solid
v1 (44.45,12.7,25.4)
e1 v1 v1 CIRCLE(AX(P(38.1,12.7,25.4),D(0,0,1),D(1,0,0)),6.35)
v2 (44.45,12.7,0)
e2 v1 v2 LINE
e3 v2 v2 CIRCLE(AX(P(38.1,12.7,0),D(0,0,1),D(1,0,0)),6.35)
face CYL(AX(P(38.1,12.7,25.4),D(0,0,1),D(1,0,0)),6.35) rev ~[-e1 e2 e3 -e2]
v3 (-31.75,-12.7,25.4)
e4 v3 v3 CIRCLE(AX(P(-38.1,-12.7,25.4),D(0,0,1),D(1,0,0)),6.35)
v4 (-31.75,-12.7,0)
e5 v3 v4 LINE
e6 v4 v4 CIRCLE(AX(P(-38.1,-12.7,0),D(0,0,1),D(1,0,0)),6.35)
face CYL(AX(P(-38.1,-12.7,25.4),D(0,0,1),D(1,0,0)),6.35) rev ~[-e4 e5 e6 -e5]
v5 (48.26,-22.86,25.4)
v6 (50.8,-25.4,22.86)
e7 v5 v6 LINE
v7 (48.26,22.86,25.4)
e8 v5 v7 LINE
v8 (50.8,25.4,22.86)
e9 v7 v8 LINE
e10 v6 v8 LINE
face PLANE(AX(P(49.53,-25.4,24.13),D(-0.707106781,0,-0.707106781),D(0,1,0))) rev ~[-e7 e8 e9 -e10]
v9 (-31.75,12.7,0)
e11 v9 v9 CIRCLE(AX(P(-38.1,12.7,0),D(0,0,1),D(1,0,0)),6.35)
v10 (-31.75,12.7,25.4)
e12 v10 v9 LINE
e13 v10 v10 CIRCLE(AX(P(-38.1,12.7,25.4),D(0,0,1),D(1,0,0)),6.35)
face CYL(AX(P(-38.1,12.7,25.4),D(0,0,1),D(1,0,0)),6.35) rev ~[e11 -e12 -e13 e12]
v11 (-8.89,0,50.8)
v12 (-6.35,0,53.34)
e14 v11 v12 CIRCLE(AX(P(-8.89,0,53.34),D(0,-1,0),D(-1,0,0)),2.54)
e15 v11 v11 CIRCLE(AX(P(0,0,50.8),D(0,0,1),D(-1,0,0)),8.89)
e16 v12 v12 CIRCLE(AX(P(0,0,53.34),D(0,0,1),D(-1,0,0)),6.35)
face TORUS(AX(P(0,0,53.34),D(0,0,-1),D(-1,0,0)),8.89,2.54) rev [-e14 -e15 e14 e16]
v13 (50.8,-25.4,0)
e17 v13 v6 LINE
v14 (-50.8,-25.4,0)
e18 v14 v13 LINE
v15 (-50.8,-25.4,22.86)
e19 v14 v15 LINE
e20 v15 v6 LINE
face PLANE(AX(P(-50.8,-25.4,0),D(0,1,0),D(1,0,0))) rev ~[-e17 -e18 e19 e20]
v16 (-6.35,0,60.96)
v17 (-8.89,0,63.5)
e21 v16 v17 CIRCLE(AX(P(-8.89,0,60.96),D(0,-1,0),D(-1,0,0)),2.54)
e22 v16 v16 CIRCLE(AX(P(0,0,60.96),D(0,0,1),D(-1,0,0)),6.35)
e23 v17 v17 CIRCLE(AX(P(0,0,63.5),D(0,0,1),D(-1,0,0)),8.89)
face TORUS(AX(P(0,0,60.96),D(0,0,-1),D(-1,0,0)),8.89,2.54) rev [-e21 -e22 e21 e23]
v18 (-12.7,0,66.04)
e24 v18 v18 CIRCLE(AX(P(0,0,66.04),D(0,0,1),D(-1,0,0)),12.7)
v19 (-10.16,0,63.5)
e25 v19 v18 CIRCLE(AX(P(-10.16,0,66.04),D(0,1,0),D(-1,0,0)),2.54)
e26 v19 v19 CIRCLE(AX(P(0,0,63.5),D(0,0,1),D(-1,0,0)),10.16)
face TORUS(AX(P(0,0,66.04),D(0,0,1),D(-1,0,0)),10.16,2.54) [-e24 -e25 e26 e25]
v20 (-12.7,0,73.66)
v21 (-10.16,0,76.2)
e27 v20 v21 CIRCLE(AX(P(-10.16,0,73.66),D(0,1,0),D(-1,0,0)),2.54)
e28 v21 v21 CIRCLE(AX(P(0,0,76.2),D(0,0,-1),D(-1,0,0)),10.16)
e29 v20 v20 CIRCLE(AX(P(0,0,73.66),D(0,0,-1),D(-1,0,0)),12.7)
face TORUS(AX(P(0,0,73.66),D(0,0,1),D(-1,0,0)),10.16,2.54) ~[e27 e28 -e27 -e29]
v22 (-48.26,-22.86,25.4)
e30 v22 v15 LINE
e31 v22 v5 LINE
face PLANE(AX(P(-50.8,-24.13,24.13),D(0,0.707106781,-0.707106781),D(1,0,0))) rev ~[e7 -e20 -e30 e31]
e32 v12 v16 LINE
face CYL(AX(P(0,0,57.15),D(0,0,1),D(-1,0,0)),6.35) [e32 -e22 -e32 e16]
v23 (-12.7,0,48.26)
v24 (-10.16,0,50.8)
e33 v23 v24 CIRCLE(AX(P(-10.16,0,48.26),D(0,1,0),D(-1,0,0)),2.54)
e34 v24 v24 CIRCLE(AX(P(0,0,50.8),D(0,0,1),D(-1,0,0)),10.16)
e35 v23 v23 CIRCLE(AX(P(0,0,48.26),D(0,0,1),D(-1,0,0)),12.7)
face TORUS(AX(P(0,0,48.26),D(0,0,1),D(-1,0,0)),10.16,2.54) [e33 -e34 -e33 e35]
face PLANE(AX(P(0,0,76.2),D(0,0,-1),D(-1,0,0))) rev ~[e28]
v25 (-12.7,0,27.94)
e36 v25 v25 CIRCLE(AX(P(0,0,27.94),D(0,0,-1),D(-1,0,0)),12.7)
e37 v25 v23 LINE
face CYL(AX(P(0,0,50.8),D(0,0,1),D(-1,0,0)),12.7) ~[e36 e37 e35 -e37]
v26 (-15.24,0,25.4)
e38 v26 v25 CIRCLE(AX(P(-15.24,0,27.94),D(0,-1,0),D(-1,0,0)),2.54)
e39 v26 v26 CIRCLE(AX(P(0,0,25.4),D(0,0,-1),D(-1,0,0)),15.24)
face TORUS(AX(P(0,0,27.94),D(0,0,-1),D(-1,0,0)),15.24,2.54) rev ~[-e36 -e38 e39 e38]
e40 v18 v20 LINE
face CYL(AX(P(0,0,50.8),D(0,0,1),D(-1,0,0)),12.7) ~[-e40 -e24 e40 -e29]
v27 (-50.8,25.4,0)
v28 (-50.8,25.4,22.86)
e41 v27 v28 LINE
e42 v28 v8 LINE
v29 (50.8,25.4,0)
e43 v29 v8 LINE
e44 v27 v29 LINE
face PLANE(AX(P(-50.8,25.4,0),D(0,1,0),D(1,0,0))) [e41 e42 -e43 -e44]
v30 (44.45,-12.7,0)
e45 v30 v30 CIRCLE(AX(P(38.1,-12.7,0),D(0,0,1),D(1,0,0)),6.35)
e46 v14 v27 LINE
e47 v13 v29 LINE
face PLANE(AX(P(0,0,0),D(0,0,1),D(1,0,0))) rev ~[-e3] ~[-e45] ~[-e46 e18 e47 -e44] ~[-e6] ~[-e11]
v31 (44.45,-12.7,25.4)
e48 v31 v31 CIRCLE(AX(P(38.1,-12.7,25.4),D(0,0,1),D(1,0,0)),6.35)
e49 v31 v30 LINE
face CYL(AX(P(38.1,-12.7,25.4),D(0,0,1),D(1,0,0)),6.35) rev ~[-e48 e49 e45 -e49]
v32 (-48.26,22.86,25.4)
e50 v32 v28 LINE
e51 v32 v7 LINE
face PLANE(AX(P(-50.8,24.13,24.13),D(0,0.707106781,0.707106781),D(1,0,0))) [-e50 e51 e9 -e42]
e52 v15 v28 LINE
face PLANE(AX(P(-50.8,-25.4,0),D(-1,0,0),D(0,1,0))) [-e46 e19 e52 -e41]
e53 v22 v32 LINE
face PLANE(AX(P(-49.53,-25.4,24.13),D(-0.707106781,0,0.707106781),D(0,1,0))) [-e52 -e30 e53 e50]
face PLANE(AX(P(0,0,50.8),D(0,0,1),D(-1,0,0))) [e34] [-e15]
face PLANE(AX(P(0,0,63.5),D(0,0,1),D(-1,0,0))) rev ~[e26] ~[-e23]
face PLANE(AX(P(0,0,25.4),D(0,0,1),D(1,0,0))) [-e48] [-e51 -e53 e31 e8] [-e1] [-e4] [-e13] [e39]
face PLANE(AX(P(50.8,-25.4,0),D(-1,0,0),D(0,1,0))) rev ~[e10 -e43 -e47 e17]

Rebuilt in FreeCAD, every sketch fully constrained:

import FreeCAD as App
import Part
import Sketcher

V = App.Vector
Q = App.Units.Quantity


def edges_at(feature, points):
    """Names of the edges that pass closest to the given points."""
    edges = feature.Shape.Edges
    near = lambda p: min(range(len(edges)), key=lambda i: edges[i].distToShape(Part.Vertex(*p))[0])
    return sorted({f"Edge{near(p) + 1}" for p in points})


def add_polygon(sketch, points):
    """Adds a closed chain of lines whose ends are joined by coincident constraints."""
    first, n = sketch.GeometryCount, len(points)
    for a, b in zip(points, points[1:] + points[:1]):
        sketch.addGeometry(Part.LineSegment(App.Vector(*a, 0), App.Vector(*b, 0)), False)
    for i in range(n):
        sketch.addConstraint(Sketcher.Constraint("Coincident", first + i, 2, first + (i + 1) % n, 1))

doc = App.newDocument("Part")
body = doc.addObject("PartDesign::Body", "Body")

# Sketch on XY plane
sketch1 = body.newObject("Sketcher::SketchObject", "Sketch")
sketch1.AttachmentSupport = (doc.getObject("XY_Plane"), [""])
sketch1.MapMode = "FlatFace"
add_polygon(sketch1, [(-50.8, 25.4), (-50.8, -25.4), (50.8, -25.4), (50.8, 25.4)])  # lines 0-3
sketch1.addConstraint(Sketcher.Constraint("Vertical", 0))
sketch1.addConstraint(Sketcher.Constraint("Horizontal", 1))
sketch1.addConstraint(Sketcher.Constraint("Vertical", 2))
sketch1.addConstraint(Sketcher.Constraint("Horizontal", 3))
sketch1.addConstraint(Sketcher.Constraint("Symmetric", 0, 2, 2, 2, -1, 1))
sketch1.addConstraint(Sketcher.Constraint("DistanceX", 1, 1, 1, 2, Q("4 in")))
sketch1.addConstraint(Sketcher.Constraint("DistanceY", 0, 2, 0, 1, Q("2 in")))
pad1 = body.newObject("PartDesign::Pad", "Pad")
pad1.Profile = sketch1
pad1.Length = Q("1 in")

# Sketch on XZ plane
sketch2 = body.newObject("Sketcher::SketchObject", "Sketch001")
sketch2.AttachmentSupport = (doc.getObject("XZ_Plane"), [""])
sketch2.MapMode = "FlatFace"
add_polygon(sketch2, [(-12.7, 76.2), (-12.7, 25.4), (0, 25.4), (0, 76.2)])  # lines 0-3
sketch2.addConstraint(Sketcher.Constraint("Vertical", 0))
sketch2.addConstraint(Sketcher.Constraint("Horizontal", 1))
sketch2.addConstraint(Sketcher.Constraint("Vertical", 2))
sketch2.addConstraint(Sketcher.Constraint("Horizontal", 3))
sketch2.addConstraint(Sketcher.Constraint("PointOnObject", 1, 2, -2))
sketch2.addConstraint(Sketcher.Constraint("DistanceY", 0, 2, 0, 1, Q("2 in")))
sketch2.addConstraint(Sketcher.Constraint("DistanceX", 1, 1, 1, 2, Q("0.5 in")))
sketch2.addConstraint(Sketcher.Constraint("DistanceY", -1, 1, 0, 2, Q("1 in")))
revolution = body.newObject("PartDesign::Revolution", "Revolution")
revolution.Profile = sketch2
revolution.ReferenceAxis = (sketch2, ["V_Axis"])
revolution.Angle = 360

# Sketch on XY plane
sketch3 = body.newObject("Sketcher::SketchObject", "Sketch002")
sketch3.AttachmentSupport = (doc.getObject("XY_Plane"), [""])
sketch3.MapMode = "FlatFace"
sketch3.AttachmentOffset = App.Placement(V(0, 0, 1 * 25.4), App.Rotation())
sketch3.addGeometry(Part.Circle(V(38.1, -12.7, 0), V(0, 0, 1), 6.35), False)
sketch3.addGeometry(Part.Circle(V(-38.1, 12.7, 0), V(0, 0, 1), 6.35), False)
sketch3.addGeometry(Part.Circle(V(38.1, 12.7, 0), V(0, 0, 1), 6.35), False)
sketch3.addGeometry(Part.Circle(V(-38.1, -12.7, 0), V(0, 0, 1), 6.35), False)
sketch3.addConstraint(Sketcher.Constraint("Equal", 0, 1))
sketch3.addConstraint(Sketcher.Constraint("Equal", 1, 2))
sketch3.addConstraint(Sketcher.Constraint("Equal", 2, 3))
sketch3.addConstraint(Sketcher.Constraint("Symmetric", 0, 3, 1, 3, -1, 1))
sketch3.addConstraint(Sketcher.Constraint("Symmetric", 2, 3, 3, 3, -1, 1))
sketch3.addConstraint(Sketcher.Constraint("Symmetric", 1, 3, 2, 3, -2))
sketch3.addConstraint(Sketcher.Constraint("Diameter", 0, Q("0.5 in")))
sketch3.addConstraint(Sketcher.Constraint("DistanceX", 1, 3, 0, 3, Q("3 in")))
sketch3.addConstraint(Sketcher.Constraint("DistanceY", 0, 3, 1, 3, Q("1 in")))
pocket1 = body.newObject("PartDesign::Pocket", "Pocket")
pocket1.Profile = sketch3
pocket1.Type = "ThroughAll"

# Sketch on XZ plane
sketch4 = body.newObject("Sketcher::SketchObject", "Sketch003")
sketch4.AttachmentSupport = (doc.getObject("XZ_Plane"), [""])
sketch4.MapMode = "FlatFace"
add_polygon(sketch4, [(-15.269708, 63.5), (-15.269708, 50.8), (-6.35, 50.8), (-6.35, 63.5)])  # lines 0-3
sketch4.addConstraint(Sketcher.Constraint("Vertical", 0))
sketch4.addConstraint(Sketcher.Constraint("Horizontal", 1))
sketch4.addConstraint(Sketcher.Constraint("Vertical", 2))
sketch4.addConstraint(Sketcher.Constraint("Horizontal", 3))
sketch4.addConstraint(Sketcher.Constraint("DistanceY", 0, 2, 0, 1, Q("0.5 in")))
sketch4.addConstraint(Sketcher.Constraint("DistanceY", -1, 1, 0, 2, Q("2 in")))
sketch4.addConstraint(Sketcher.Constraint("DistanceX", 1, 2, -1, 1, Q("0.25 in")))
sketch4.addConstraint(Sketcher.Constraint("DistanceX", 1, 1, 1, 2, 8.919708))
groove = body.newObject("PartDesign::Groove", "Groove")
groove.Profile = sketch4
groove.ReferenceAxis = (sketch4, ["V_Axis"])
groove.Angle = 360
doc.recompute()

fillet = body.newObject("PartDesign::Fillet", "Fillet")
fillet.Base = (groove, edges_at(groove, [
    (12.7, 0, 50.8),
    (12.7, 0, 25.4),
    (6.35, 0, 50.8),
    (6.35, 0, 63.5),
    (12.7, 0, 63.5),
    (12.7, 0, 76.2),
]))
fillet.Radius = Q("0.1 in")
doc.recompute()

chamfer = body.newObject("PartDesign::Chamfer", "Chamfer")
chamfer.Base = (fillet, edges_at(fillet, [
    (0, -25.4, 25.4),
    (-50.8, 0, 25.4),
    (0, 25.4, 25.4),
    (50.8, 0, 25.4),
]))
chamfer.Size = Q("0.1 in")

doc.recompute()
